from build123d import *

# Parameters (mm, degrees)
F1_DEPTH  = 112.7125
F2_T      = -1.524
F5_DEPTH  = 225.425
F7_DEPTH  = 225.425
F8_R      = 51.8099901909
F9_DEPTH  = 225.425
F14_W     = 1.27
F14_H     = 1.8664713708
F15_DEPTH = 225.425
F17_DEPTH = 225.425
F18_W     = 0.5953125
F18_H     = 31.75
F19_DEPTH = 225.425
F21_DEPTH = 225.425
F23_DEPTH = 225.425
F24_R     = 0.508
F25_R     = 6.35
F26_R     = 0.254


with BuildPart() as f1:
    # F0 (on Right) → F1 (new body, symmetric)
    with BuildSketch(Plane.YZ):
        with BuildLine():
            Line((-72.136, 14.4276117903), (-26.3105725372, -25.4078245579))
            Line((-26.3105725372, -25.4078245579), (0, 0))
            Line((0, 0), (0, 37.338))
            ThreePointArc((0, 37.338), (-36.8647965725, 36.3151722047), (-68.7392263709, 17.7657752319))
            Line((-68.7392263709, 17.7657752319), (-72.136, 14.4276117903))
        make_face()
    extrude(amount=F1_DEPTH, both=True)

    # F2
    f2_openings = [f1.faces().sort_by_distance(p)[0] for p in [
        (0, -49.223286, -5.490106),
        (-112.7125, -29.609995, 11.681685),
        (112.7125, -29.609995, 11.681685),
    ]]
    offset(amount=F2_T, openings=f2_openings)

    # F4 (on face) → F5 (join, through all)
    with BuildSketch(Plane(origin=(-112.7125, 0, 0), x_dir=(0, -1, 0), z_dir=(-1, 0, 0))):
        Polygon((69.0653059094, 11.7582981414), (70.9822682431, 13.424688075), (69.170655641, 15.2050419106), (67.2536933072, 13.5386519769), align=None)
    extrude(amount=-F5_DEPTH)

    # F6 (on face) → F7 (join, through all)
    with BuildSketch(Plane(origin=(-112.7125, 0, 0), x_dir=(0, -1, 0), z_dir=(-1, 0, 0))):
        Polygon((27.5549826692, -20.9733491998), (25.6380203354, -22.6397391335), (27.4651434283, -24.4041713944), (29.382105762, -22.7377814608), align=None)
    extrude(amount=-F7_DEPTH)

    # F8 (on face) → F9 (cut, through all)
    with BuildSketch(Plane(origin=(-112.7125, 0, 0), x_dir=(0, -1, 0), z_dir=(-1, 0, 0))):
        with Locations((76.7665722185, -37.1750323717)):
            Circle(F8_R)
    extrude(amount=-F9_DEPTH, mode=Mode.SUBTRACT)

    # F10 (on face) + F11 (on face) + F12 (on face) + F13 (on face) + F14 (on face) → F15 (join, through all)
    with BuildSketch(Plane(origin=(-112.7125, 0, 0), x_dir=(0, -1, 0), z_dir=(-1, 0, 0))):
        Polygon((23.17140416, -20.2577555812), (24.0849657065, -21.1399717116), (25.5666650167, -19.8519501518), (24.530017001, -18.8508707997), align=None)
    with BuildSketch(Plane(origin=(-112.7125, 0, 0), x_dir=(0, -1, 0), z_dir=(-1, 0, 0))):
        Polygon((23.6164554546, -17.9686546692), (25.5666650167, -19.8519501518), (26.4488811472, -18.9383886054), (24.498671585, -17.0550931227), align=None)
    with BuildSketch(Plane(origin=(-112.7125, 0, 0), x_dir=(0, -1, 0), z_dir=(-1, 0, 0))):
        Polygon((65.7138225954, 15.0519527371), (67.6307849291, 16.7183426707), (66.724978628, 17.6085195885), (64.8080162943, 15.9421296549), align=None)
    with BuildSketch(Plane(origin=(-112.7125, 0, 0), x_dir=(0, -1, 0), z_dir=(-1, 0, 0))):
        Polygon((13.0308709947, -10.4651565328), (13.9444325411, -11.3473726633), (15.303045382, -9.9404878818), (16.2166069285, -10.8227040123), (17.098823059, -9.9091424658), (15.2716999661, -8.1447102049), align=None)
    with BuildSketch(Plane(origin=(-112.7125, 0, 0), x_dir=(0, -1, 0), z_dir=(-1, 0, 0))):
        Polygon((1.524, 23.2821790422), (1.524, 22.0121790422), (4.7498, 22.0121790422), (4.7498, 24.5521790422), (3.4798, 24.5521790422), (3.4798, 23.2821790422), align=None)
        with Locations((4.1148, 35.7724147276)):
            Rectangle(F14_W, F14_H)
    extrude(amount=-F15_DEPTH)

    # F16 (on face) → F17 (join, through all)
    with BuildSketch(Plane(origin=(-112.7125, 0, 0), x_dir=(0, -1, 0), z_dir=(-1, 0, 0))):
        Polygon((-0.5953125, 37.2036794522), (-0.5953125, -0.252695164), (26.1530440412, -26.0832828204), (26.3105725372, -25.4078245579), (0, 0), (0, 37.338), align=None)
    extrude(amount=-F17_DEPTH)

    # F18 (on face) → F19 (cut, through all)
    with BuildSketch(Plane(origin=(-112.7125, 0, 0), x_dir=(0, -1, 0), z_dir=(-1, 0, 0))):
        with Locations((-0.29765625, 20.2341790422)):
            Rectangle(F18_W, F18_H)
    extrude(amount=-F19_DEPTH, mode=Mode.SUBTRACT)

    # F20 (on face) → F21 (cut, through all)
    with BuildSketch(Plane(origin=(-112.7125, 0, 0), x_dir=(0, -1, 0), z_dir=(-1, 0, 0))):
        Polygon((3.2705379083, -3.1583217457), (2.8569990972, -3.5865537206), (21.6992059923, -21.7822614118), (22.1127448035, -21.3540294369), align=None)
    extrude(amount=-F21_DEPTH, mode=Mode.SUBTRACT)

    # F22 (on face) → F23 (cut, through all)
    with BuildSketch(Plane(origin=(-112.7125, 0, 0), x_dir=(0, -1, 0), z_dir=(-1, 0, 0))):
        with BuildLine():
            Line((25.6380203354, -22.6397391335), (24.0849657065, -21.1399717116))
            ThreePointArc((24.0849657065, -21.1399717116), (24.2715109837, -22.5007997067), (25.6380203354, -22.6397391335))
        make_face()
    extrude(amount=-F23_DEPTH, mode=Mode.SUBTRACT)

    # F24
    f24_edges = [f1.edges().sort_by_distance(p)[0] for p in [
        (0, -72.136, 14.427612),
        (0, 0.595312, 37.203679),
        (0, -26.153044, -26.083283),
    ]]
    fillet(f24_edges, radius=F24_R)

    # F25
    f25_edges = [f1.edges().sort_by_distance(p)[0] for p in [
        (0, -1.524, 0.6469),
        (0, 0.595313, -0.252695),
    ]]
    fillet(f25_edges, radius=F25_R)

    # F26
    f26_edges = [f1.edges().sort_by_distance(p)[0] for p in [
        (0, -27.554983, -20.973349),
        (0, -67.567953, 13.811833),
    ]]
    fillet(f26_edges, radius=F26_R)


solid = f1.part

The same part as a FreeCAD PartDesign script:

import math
import FreeCAD as App
import Part
import Sketcher

V = App.Vector
Q = App.Units.Quantity


def edges_at(feature, points):
    """Names of the edges that pass closest to the given points."""
    edges = feature.Shape.Edges
    near = lambda p: min(range(len(edges)), key=lambda i: edges[i].distToShape(Part.Vertex(*p))[0])
    return sorted({f"Edge{near(p) + 1}" for p in points})


def faces_at(feature, points):
    """Names of the faces that lie closest to the given points."""
    faces = feature.Shape.Faces
    near = lambda p: min(range(len(faces)), key=lambda i: faces[i].distToShape(Part.Vertex(*p))[0])
    return sorted({f"Face{near(p) + 1}" for p in points})

doc = App.newDocument("Part")
body = doc.addObject("PartDesign::Body", "Body")

sketch1 = body.newObject("Sketcher::SketchObject", "Sketch")
sketch1.AttachmentSupport = (doc.getObject("YZ_Plane"), [""])
sketch1.MapMode = "FlatFace"
sketch1.addGeometry([
    Part.LineSegment(V(-72.136, 14.427612, 0), V(-26.310573, -25.407825, 0)),
    Part.LineSegment(V(-26.310573, -25.407825, 0), V(0, 0, 0)),
    Part.LineSegment(V(0, 0, 0), V(0, 37.338, 0)),
    Part.ArcOfCircle(Part.Circle(V(-16.426632, -35.465303, 0), V(0, 0, 1), 74.633472), math.radians(77.285247), math.radians(134.501401)),
    Part.LineSegment(V(-68.739226, 17.765775, 0), V(-72.136, 14.427612, 0)),
], False)
sketch1.addConstraint([
    Sketcher.Constraint("Coincident", 0, 2, 1, 1),
    Sketcher.Constraint("Coincident", 1, 2, 2, 1),
    Sketcher.Constraint("Coincident", 2, 2, 3, 1),
    Sketcher.Constraint("Tangent", 3, 2, 4, 1),
    Sketcher.Constraint("Coincident", 4, 2, 0, 1),
    Sketcher.Constraint("Vertical", 2),
    Sketcher.Constraint("Coincident", 1, 2, -1, 1),
    Sketcher.Constraint("Angle", 0, Q("-41 deg")),
    Sketcher.Constraint("Angle", 1, Q("44 deg")),
    Sketcher.Constraint("DistanceY", 2, 1, 2, 2, Q("1.47 in")),
    Sketcher.Constraint("Distance", 1, Q("1.44 in")),
    Sketcher.Constraint("DistanceX", 4, 2, -1, 1, Q("2.84 in")),
    Sketcher.Constraint("Distance", 4, Q("0.1875 in")),
    Sketcher.Constraint("Radius", 3, Q("74.633472 mm")),
])
pad1 = body.newObject("PartDesign::Pad", "Pad")
pad1.Profile = sketch1
pad1.Length = Q("8.875 in")
pad1.Midplane = True
doc.recompute()

thickness = body.newObject("PartDesign::Thickness", "Thickness")
thickness.Base = (pad1, faces_at(pad1, [(0, -49.223, -5.49), (-112.713, -36.068, 6.88), (112.713, -36.068, 6.88)]))
thickness.Value = Q("0.06 in")
thickness.Reversed = True
thickness.Join = "Arc"

sketch2 = body.newObject("Sketcher::SketchObject", "Sketch001")
sketch2.AttachmentSupport = (doc.getObject("YZ_Plane"), [""])
sketch2.MapMode = "FlatFace"
sketch2.AttachmentOffset = App.Placement(V(0, 0, -4.4375 * 25.4), App.Rotation())
sketch2.addGeometry([
    Part.LineSegment(V(-69.065306, 11.758298, 0), V(-70.982268, 13.424688, 0)),
    Part.LineSegment(V(-70.982268, 13.424688, 0), V(-69.170656, 15.205042, 0)),
    Part.LineSegment(V(-69.170656, 15.205042, 0), V(-67.253693, 13.538652, 0)),
    Part.LineSegment(V(-67.253693, 13.538652, 0), V(-69.065306, 11.758298, 0)),
], False)
sketch2.addConstraint([
    Sketcher.Constraint("Coincident", 0, 2, 1, 1),
    Sketcher.Constraint("Coincident", 1, 2, 2, 1),
    Sketcher.Constraint("Coincident", 2, 2, 3, 1),
    Sketcher.Constraint("Coincident", 3, 2, 0, 1),
    Sketcher.Constraint("Parallel", 0, 2),
    Sketcher.Constraint("Parallel", 1, 3),
    Sketcher.Constraint("Equal", 0, 1),
    Sketcher.Constraint("Angle", 0, Q("139 deg")),
    Sketcher.Constraint("Distance", 0, Q("0.1 in")),
    Sketcher.Constraint("DistanceY", -1, 1, 3, 2, Q("11.758298 mm")),
    Sketcher.Constraint("DistanceX", 0, 2, -1, 1, Q("70.982268 mm")),
    Sketcher.Constraint("DistanceY", -1, 1, 1, 2, Q("15.205042 mm")),
])
pad2 = body.newObject("PartDesign::Pad", "Pad001")
pad2.Profile = sketch2
pad2.Length = Q("8.875 in")

sketch3 = body.newObject("Sketcher::SketchObject", "Sketch002")
sketch3.AttachmentSupport = (doc.getObject("YZ_Plane"), [""])
sketch3.MapMode = "FlatFace"
sketch3.AttachmentOffset = App.Placement(V(0, 0, -4.4375 * 25.4), App.Rotation())
sketch3.addGeometry([
    Part.LineSegment(V(-27.554983, -20.973349, 0), V(-25.63802, -22.639739, 0)),
    Part.LineSegment(V(-25.63802, -22.639739, 0), V(-27.465143, -24.404171, 0)),
    Part.LineSegment(V(-27.465143, -24.404171, 0), V(-29.382106, -22.737781, 0)),
    Part.LineSegment(V(-29.382106, -22.737781, 0), V(-27.554983, -20.973349, 0)),
], False)
sketch3.addConstraint([
    Sketcher.Constraint("Coincident", 0, 2, 1, 1),
    Sketcher.Constraint("Coincident", 1, 2, 2, 1),
    Sketcher.Constraint("Coincident", 2, 2, 3, 1),
    Sketcher.Constraint("Coincident", 3, 2, 0, 1),
    Sketcher.Constraint("Parallel", 0, 2),
    Sketcher.Constraint("Parallel", 1, 3),
    Sketcher.Constraint("Equal", 0, 1),
    Sketcher.Constraint("Angle", 0, Q("-41 deg")),
    Sketcher.Constraint("Angle", 1, Q("-136 deg")),
    Sketcher.Constraint("Distance", 0, Q("0.1 in")),
    Sketcher.Constraint("DistanceX", 0, 2, -1, 1, Q("25.63802 mm")),
    Sketcher.Constraint("DistanceY", 0, 2, -1, 1, Q("22.639739 mm")),
])
pad3 = body.newObject("PartDesign::Pad", "Pad002")
pad3.Profile = sketch3
pad3.Length = Q("8.875 in")

sketch4 = body.newObject("Sketcher::SketchObject", "Sketch003")
sketch4.AttachmentSupport = (doc.getObject("YZ_Plane"), [""])
sketch4.MapMode = "FlatFace"
sketch4.AttachmentOffset = App.Placement(V(0, 0, -4.4375 * 25.4), App.Rotation())
sketch4.addGeometry(Part.Circle(V(-76.766572, -37.175032, 0), V(0, 0, 1), 51.80999), False)
sketch4.addConstraint([
    Sketcher.Constraint("Diameter", 0, Q("103.61998 mm")),
    Sketcher.Constraint("DistanceX", 0, 3, -1, 1, Q("76.766572 mm")),
    Sketcher.Constraint("DistanceY", 0, 3, -1, 1, Q("37.175032 mm")),
])
pocket1 = body.newObject("PartDesign::Pocket", "Pocket")
pocket1.Profile = sketch4
pocket1.Type = "ThroughAll"
pocket1.Reversed = True

sketch5 = body.newObject("Sketcher::SketchObject", "Sketch004")
sketch5.AttachmentSupport = (doc.getObject("YZ_Plane"), [""])
sketch5.MapMode = "FlatFace"
sketch5.AttachmentOffset = App.Placement(V(0, 0, -4.4375 * 25.4), App.Rotation())
sketch5.addGeometry([
    Part.LineSegment(V(-23.171404, -20.257756, 0), V(-24.084966, -21.139972, 0)),
    Part.LineSegment(V(-24.084966, -21.139972, 0), V(-25.566665, -19.85195, 0)),
    Part.LineSegment(V(-25.566665, -19.85195, 0), V(-26.448881, -18.938389, 0)),
    Part.LineSegment(V(-26.448881, -18.938389, 0), V(-24.498672, -17.055093, 0)),
    Part.LineSegment(V(-24.498672, -17.055093, 0), V(-23.616455, -17.968655, 0)),
    Part.LineSegment(V(-23.616455, -17.968655, 0), V(-24.530017, -18.850871, 0)),
    Part.LineSegment(V(-24.530017, -18.850871, 0), V(-23.171404, -20.257756, 0)),
    Part.LineSegment(V(-65.713823, 15.051953, 0), V(-67.630785, 16.718343, 0)),
    Part.LineSegment(V(-67.630785, 16.718343, 0), V(-66.724979, 17.60852, 0)),
    Part.LineSegment(V(-66.724979, 17.60852, 0), V(-64.808016, 15.94213, 0)),
    Part.LineSegment(V(-64.808016, 15.94213, 0), V(-65.713823, 15.051953, 0)),
    Part.LineSegment(V(-13.030871, -10.465157, 0), V(-13.944433, -11.347373, 0)),
    Part.LineSegment(V(-13.944433, -11.347373, 0), V(-15.303045, -9.940488, 0)),
    Part.LineSegment(V(-15.303045, -9.940488, 0), V(-16.216607, -10.822704, 0)),
    Part.LineSegment(V(-16.216607, -10.822704, 0), V(-17.098823, -9.909142, 0)),
    Part.LineSegment(V(-17.098823, -9.909142, 0), V(-15.2717, -8.14471, 0)),
    Part.LineSegment(V(-15.2717, -8.14471, 0), V(-13.030871, -10.465157, 0)),
    Part.LineSegment(V(-1.524, 23.282179, 0), V(-1.524, 22.012179, 0)),
    Part.LineSegment(V(-1.524, 22.012179, 0), V(-4.7498, 22.012179, 0)),
    Part.LineSegment(V(-4.7498, 22.012179, 0), V(-4.7498, 24.552179, 0)),
    Part.LineSegment(V(-4.7498, 24.552179, 0), V(-3.4798, 24.552179, 0)),
    Part.LineSegment(V(-3.4798, 24.552179, 0), V(-3.4798, 23.282179, 0)),
    Part.LineSegment(V(-3.4798, 23.282179, 0), V(-1.524, 23.282179, 0)),
    Part.LineSegment(V(-3.4798, 36.70565, 0), V(-3.4798, 34.839179, 0)),
    Part.LineSegment(V(-3.4798, 34.839179, 0), V(-4.7498, 34.839179, 0)),
    Part.LineSegment(V(-4.7498, 34.839179, 0), V(-4.7498, 36.70565, 0)),
    Part.LineSegment(V(-4.7498, 36.70565, 0), V(-3.4798, 36.70565, 0)),
], False)
sketch5.addConstraint([
    Sketcher.Constraint("Coincident", 0, 2, 1, 1),
    Sketcher.Constraint("Coincident", 1, 2, 2, 1),
    Sketcher.Constraint("Coincident", 2, 2, 3, 1),
    Sketcher.Constraint("Coincident", 3, 2, 4, 1),
    Sketcher.Constraint("Coincident", 4, 2, 5, 1),
    Sketcher.Constraint("Coincident", 5, 2, 6, 1),
    Sketcher.Constraint("Coincident", 6, 2, 0, 1),
    Sketcher.Constraint("Coincident", 7, 2, 8, 1),
    Sketcher.Constraint("Coincident", 8, 2, 9, 1),
    Sketcher.Constraint("Coincident", 9, 2, 10, 1),
    Sketcher.Constraint("Coincident", 10, 2, 7, 1),
    Sketcher.Constraint("Coincident", 11, 2, 12, 1),
    Sketcher.Constraint("Coincident", 12, 2, 13, 1),
    Sketcher.Constraint("Coincident", 13, 2, 14, 1),
    Sketcher.Constraint("Coincident", 14, 2, 15, 1),
    Sketcher.Constraint("Coincident", 15, 2, 16, 1),
    Sketcher.Constraint("Coincident", 16, 2, 11, 1),
    Sketcher.Constraint("Coincident", 17, 2, 18, 1),
    Sketcher.Constraint("Coincident", 18, 2, 19, 1),
    Sketcher.Constraint("Coincident", 19, 2, 20, 1),
    Sketcher.Constraint("Coincident", 20, 2, 21, 1),
    Sketcher.Constraint("Coincident", 21, 2, 22, 1),
    Sketcher.Constraint("Coincident", 22, 2, 17, 1),
    Sketcher.Constraint("Coincident", 23, 2, 24, 1),
    Sketcher.Constraint("Coincident", 24, 2, 25, 1),
    Sketcher.Constraint("Coincident", 25, 2, 26, 1),
    Sketcher.Constraint("Coincident", 26, 2, 23, 1),
    Sketcher.Constraint("Vertical", 17),
    Sketcher.Constraint("Horizontal", 18),
    Sketcher.Constraint("Vertical", 19),
    Sketcher.Constraint("Horizontal", 20),
    Sketcher.Constraint("Vertical", 21),
    Sketcher.Constraint("Horizontal", 22),
    Sketcher.Constraint("Vertical", 23),
    Sketcher.Constraint("Horizontal", 24),
    Sketcher.Constraint("Vertical", 25),
    Sketcher.Constraint("Horizontal", 26),
    Sketcher.Constraint("Perpendicular", 0, 2),
    Sketcher.Constraint("Perpendicular", 2, 3),
    Sketcher.Constraint("Perpendicular", 3, 4),
    Sketcher.Constraint("Perpendicular", 4, 5),
    Sketcher.Constraint("Perpendicular", 5, 6),
    Sketcher.Constraint("Parallel", 1, 7),
    Sketcher.Constraint("Parallel", 7, 9),
    Sketcher.Constraint("Parallel", 8, 10),
    Sketcher.Constraint("Perpendicular", 6, 11),
    Sketcher.Constraint("Perpendicular", 11, 12),
    Sketcher.Constraint("Perpendicular", 12, 13),
    Sketcher.Constraint("Perpendicular", 13, 14),
    Sketcher.Constraint("Perpendicular", 14, 15),
    Sketcher.Constraint("Perpendicular", 15, 16),
    Sketcher.Constraint("Vertical", 21, 2, 23, 2),
    Sketcher.Constraint("Vertical", 19, 2, 24, 2),
    Sketcher.Constraint("Equal", 26, 17),
    Sketcher.Constraint("Equal", 17, 21),
    Sketcher.Constraint("Equal", 0, 2),
    Sketcher.Constraint("Equal", 2, 4),
    Sketcher.Constraint("Equal", 4, 5),
    Sketcher.Constraint("Equal", 5, 8),
    Sketcher.Constraint("Equal", 10, 11),
    Sketcher.Constraint("Equal", 6, 12),
    Sketcher.Constraint("Equal", 11, 13),
    Sketcher.Constraint("Equal", 13, 14),
    Sketcher.Constraint("Equal", 9, 15),
    Sketcher.Constraint("DistanceY", 19, 1, 19, 2, Q("0.1 in")),
    Sketcher.Constraint("Angle", 0, Q("-136 deg")),
    Sketcher.Constraint("Angle", 1, Q("139 deg")),
    Sketcher.Constraint("Distance", 7, Q("0.1 in")),
    Sketcher.Constraint("DistanceX", 18, 2, 18, 1, Q("0.127 in")),
    Sketcher.Constraint("DistanceX", 17, 2, -1, 1, Q("0.06 in")),
    Sketcher.Constraint("Distance", 6, Q("0.077 in")),
    Sketcher.Constraint("DistanceY", 20, 2, 23, 2, Q("0.405 in")),
    Sketcher.Constraint("DistanceY", 23, 2, 23, 1, Q("1.866471 mm")),
    Sketcher.Constraint("DistanceX", 15, 2, -1, 1, Q("15.2717 mm")),
    Sketcher.Constraint("DistanceY", 5, 2, 11, 2, Q("7.503498 mm")),
    Sketcher.Constraint("DistanceY", 0, 2, -1, 1, Q("21.139972 mm")),
    Sketcher.Constraint("DistanceX", 2, 2, -1, 1, Q("26.448881 mm")),
    Sketcher.Constraint("DistanceX", 8, 2, -1, 1, Q("66.724979 mm")),
    Sketcher.Constraint("DistanceY", -1, 1, 8, 2, Q("17.60852 mm")),
    Sketcher.Constraint("DistanceY", -1, 1, 17, 2, Q("22.012179 mm")),
    Sketcher.Constraint("DistanceY", 2, 2, 7, 2, Q("35.656731 mm")),
])
pad4 = body.newObject("PartDesign::Pad", "Pad003")
pad4.Profile = sketch5
pad4.Length = Q("8.875 in")

sketch6 = body.newObject("Sketcher::SketchObject", "Sketch005")
sketch6.AttachmentSupport = (doc.getObject("YZ_Plane"), [""])
sketch6.MapMode = "FlatFace"
sketch6.AttachmentOffset = App.Placement(V(0, 0, -4.4375 * 25.4), App.Rotation())
sketch6.addGeometry([
    Part.LineSegment(V(0.595313, 37.203679, 0), V(0.595313, -0.252695, 0)),
    Part.LineSegment(V(0.595313, -0.252695, 0), V(-26.153044, -26.083283, 0)),
    Part.LineSegment(V(-26.153044, -26.083283, 0), V(-26.310573, -25.407825, 0)),
    Part.LineSegment(V(-26.310573, -25.407825, 0), V(0, 0, 0)),
    Part.LineSegment(V(0, 0, 0), V(0, 37.338, 0)),
    Part.LineSegment(V(0, 37.338, 0), V(0.595313, 37.203679, 0)),
], False)
sketch6.addConstraint([
    Sketcher.Constraint("Coincident", 0, 2, 1, 1),
    Sketcher.Constraint("Coincident", 1, 2, 2, 1),
    Sketcher.Constraint("Coincident", 2, 2, 3, 1),
    Sketcher.Constraint("Coincident", 3, 2, 4, 1),
    Sketcher.Constraint("Coincident", 4, 2, 5, 1),
    Sketcher.Constraint("Coincident", 5, 2, 0, 1),
    Sketcher.Constraint("Vertical", 0),
    Sketcher.Constraint("Vertical", 4),
    Sketcher.Constraint("Coincident", 3, 2, -1, 1),
    Sketcher.Constraint("Parallel", 1, 3),
    Sketcher.Constraint("Angle", 1, Q("-136 deg")),
    Sketcher.Constraint("DistanceY", 4, 1, 4, 2, Q("1.47 in")),
    Sketcher.Constraint("Distance", 3, Q("1.44 in")),
    Sketcher.Constraint("Distance", 1, Q("37.184591 mm")),
    Sketcher.Constraint("DistanceY", 0, 2, 0, 1, Q("37.456375 mm")),
    Sketcher.Constraint("DistanceY", -1, 1, 5, 2, Q("37.203679 mm")),
    Sketcher.Constraint("DistanceX", 2, 2, 1, 2, Q("0.157528 mm")),
])
pad5 = body.newObject("PartDesign::Pad", "Pad004")
pad5.Profile = sketch6
pad5.Length = Q("8.875 in")

sketch7 = body.newObject("Sketcher::SketchObject", "Sketch006")
sketch7.AttachmentSupport = (doc.getObject("YZ_Plane"), [""])
sketch7.MapMode = "FlatFace"
sketch7.AttachmentOffset = App.Placement(V(0, 0, -4.4375 * 25.4), App.Rotation())
sketch7.addGeometry([
    Part.LineSegment(V(0.595313, 36.109179, 0), V(0.595313, 4.359179, 0)),
    Part.LineSegment(V(0.595313, 4.359179, 0), V(0, 4.359179, 0)),
    Part.LineSegment(V(0, 4.359179, 0), V(0, 36.109179, 0)),
    Part.LineSegment(V(0, 36.109179, 0), V(0.595313, 36.109179, 0)),
], False)
sketch7.addConstraint([
    Sketcher.Constraint("Coincident", 0, 2, 1, 1),
    Sketcher.Constraint("Coincident", 1, 2, 2, 1),
    Sketcher.Constraint("Coincident", 2, 2, 3, 1),
    Sketcher.Constraint("Coincident", 3, 2, 0, 1),
    Sketcher.Constraint("Vertical", 0),
    Sketcher.Constraint("Horizontal", 1),
    Sketcher.Constraint("Vertical", 2),
    Sketcher.Constraint("Horizontal", 3),
    Sketcher.Constraint("PointOnObject", 1, 2, -2),
    Sketcher.Constraint("DistanceY", 0, 2, 0, 1, Q("1.25 in")),
    Sketcher.Constraint("DistanceX", 1, 2, 1, 1, Q("0.595313 mm")),
    Sketcher.Constraint("DistanceY", -1, 1, 0, 2, Q("4.359179 mm")),
])
pocket2 = body.newObject("PartDesign::Pocket", "Pocket001")
pocket2.Profile = sketch7
pocket2.Type = "ThroughAll"
pocket2.Reversed = True

sketch8 = body.newObject("Sketcher::SketchObject", "Sketch007")
sketch8.AttachmentSupport = (doc.getObject("YZ_Plane"), [""])
sketch8.MapMode = "FlatFace"
sketch8.AttachmentOffset = App.Placement(V(0, 0, -4.4375 * 25.4), App.Rotation())
sketch8.addGeometry([
    Part.LineSegment(V(-3.270538, -3.158322, 0), V(-2.856999, -3.586554, 0)),
    Part.LineSegment(V(-2.856999, -3.586554, 0), V(-21.699206, -21.782261, 0)),
    Part.LineSegment(V(-21.699206, -21.782261, 0), V(-22.112745, -21.354029, 0)),
    Part.LineSegment(V(-22.112745, -21.354029, 0), V(-3.270538, -3.158322, 0)),
], False)
sketch8.addConstraint([
    Sketcher.Constraint("Coincident", 0, 2, 1, 1),
    Sketcher.Constraint("Coincident", 1, 2, 2, 1),
    Sketcher.Constraint("Coincident", 2, 2, 3, 1),
    Sketcher.Constraint("Coincident", 3, 2, 0, 1),
    Sketcher.Constraint("Perpendicular", 0, 1),
    Sketcher.Constraint("Perpendicular", 1, 2),
    Sketcher.Constraint("Perpendicular", 2, 3),
    Sketcher.Constraint("Angle", 0, Q("-46 deg")),
    Sketcher.Constraint("Distance", 1, Q("1.03125 in")),
    Sketcher.Constraint("DistanceX", 0, 2, -1, 1, Q("2.856999 mm")),
    Sketcher.Constraint("DistanceY", 1, 2, -1, 1, Q("21.782261 mm")),
    Sketcher.Constraint("DistanceY", 2, 2, -1, 1, Q("21.354029 mm")),
])
pocket3 = body.newObject("PartDesign::Pocket", "Pocket002")
pocket3.Profile = sketch8
pocket3.Type = "ThroughAll"
pocket3.Reversed = True

sketch9 = body.newObject("Sketcher::SketchObject", "Sketch008")
sketch9.AttachmentSupport = (doc.getObject("YZ_Plane"), [""])
sketch9.MapMode = "FlatFace"
sketch9.AttachmentOffset = App.Placement(V(0, 0, -4.4375 * 25.4), App.Rotation())
sketch9.addGeometry([
    Part.LineSegment(V(-25.63802, -22.639739, 0), V(-24.084966, -21.139972, 0)),
    Part.ArcOfCircle(Part.Circle(V(-25.043064, -21.701834, 0), V(0, 0, 1), 1.110694), math.radians(-122.388839), math.radians(30.388839)),
], False)
sketch9.addConstraint([
    Sketcher.Constraint("Coincident", 0, 1, 1, 1),
    Sketcher.Constraint("Coincident", 1, 2, 0, 2),
    Sketcher.Constraint("Angle", 0, Q("44 deg")),
    Sketcher.Constraint("Distance", 0, Q("0.085 in")),
    Sketcher.Constraint("Radius", 1, Q("1.110694 mm")),
    Sketcher.Constraint("DistanceX", 0, 1, -1, 1, Q("25.63802 mm")),
    Sketcher.Constraint("DistanceY", 0, 1, -1, 1, Q("22.639739 mm")),
])
pocket4 = body.newObject("PartDesign::Pocket", "Pocket003")
pocket4.Profile = sketch9
pocket4.Type = "ThroughAll"
pocket4.Reversed = True
doc.recompute()

fillet = body.newObject("PartDesign::Fillet", "Fillet")
fillet.Base = (pocket4, edges_at(pocket4, [(0, -72.136, 14.428), (0, 0.595, 37.204), (0, -26.153, -26.083)]))
fillet.Radius = Q("0.02 in")
doc.recompute()

fillet2 = body.newObject("PartDesign::Fillet", "Fillet001")
fillet2.Base = (fillet, edges_at(fillet, [(0, -1.524, 0.647), (0, 0.595, -0.253)]))
fillet2.Radius = Q("0.25 in")
doc.recompute()

fillet3 = body.newObject("PartDesign::Fillet", "Fillet002")
fillet3.Base = (fillet2, edges_at(fillet2, [(0, -27.555, -20.973), (0, -67.568, 13.812)]))
fillet3.Radius = Q("0.01 in")

doc.recompute()
